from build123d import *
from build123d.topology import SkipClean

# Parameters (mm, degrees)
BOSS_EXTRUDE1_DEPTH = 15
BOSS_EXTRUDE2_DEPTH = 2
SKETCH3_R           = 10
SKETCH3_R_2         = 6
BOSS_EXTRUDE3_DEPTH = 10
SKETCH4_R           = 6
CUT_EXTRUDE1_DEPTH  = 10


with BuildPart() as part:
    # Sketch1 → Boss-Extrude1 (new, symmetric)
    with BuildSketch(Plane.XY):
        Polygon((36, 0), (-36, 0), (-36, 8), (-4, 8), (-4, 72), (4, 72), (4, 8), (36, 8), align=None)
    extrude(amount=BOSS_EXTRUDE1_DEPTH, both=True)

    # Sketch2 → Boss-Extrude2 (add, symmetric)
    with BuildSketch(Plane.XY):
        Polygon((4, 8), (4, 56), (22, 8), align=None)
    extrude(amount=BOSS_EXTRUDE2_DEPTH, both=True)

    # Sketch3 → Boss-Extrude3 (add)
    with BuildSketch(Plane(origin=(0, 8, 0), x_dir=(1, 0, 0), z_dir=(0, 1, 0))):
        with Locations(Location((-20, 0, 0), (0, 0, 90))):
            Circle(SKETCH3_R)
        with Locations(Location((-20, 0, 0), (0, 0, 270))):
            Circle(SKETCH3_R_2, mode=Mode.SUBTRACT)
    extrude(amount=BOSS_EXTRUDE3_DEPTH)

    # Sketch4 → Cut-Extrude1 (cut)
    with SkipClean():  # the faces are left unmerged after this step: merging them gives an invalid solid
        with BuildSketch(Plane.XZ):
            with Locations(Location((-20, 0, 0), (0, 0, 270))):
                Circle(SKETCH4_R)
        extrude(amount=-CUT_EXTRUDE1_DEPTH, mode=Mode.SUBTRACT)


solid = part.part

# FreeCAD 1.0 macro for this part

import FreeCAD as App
import Part
import Sketcher


def add_polygon(sketch, points):
    """Adds a closed chain of lines whose ends are joined by coincident constraints."""
    first, n = sketch.GeometryCount, len(points)
    for a, b in zip(points, points[1:] + points[:1]):
        sketch.addGeometry(Part.LineSegment(App.Vector(*a, 0), App.Vector(*b, 0)), False)
    for i in range(n):
        sketch.addConstraint(Sketcher.Constraint("Coincident", first + i, 2, first + (i + 1) % n, 1))

doc = App.newDocument("Part")
body = doc.addObject("PartDesign::Body", "Body")

# Sketch on XY plane
sketch1 = doc.addObject("Sketcher::SketchObject", "Sketch")
body.addObject(sketch1)
sketch1.AttachmentSupport = (doc.XY_Plane, [""])
sketch1.MapMode = "FlatFace"
add_polygon(sketch1, [(-36, 0), (36, 0), (36, 8), (4, 8), (4, 72), (-4, 72), (-4, 8), (-36, 8)])  # lines 0-7
sketch1.addConstraint([
    Sketcher.Constraint("Horizontal", 0),
    Sketcher.Constraint("Vertical", 1),
    Sketcher.Constraint("Horizontal", 2),
    Sketcher.Constraint("Vertical", 3),
    Sketcher.Constraint("Horizontal", 4),
    Sketcher.Constraint("Vertical", 5),
    Sketcher.Constraint("Horizontal", 6),
    Sketcher.Constraint("Vertical", 7),
    Sketcher.Constraint("Symmetric", 0, 2, 7, 2, -1, 1),
    Sketcher.Constraint("Symmetric", 2, 2, 5, 2, -2),
    Sketcher.Constraint("Equal", 4, 1),
    Sketcher.Constraint("DistanceX", 0, 1, 0, 2, 72.0),
    Sketcher.Constraint("DistanceX", 2, 2, 2, 1, 32.0),
    Sketcher.Constraint("DistanceY", 3, 1, 3, 2, 64.0),
])
pad1 = doc.addObject("PartDesign::Pad", "Pad")
body.addObject(pad1)
pad1.Profile = sketch1
pad1.Length = 30
pad1.Midplane = True

# Sketch on XY plane
sketch2 = doc.addObject("Sketcher::SketchObject", "Sketch001")
body.addObject(sketch2)
sketch2.AttachmentSupport = (doc.XY_Plane, [""])
sketch2.MapMode = "FlatFace"
add_polygon(sketch2, [(4, 56), (4, 8), (22, 8)])  # lines 0-2
sketch2.addConstraint([
    Sketcher.Constraint("Vertical", 0),
    Sketcher.Constraint("Horizontal", 1),
    Sketcher.Constraint("DistanceX", 1, 1, 1, 2, 18.0),
    Sketcher.Constraint("DistanceY", 0, 2, 0, 1, 48.0),
    Sketcher.Constraint("DistanceX", -1, 1, 0, 2, 4.0),
    Sketcher.Constraint("DistanceY", -1, 1, 0, 2, 8.0),
])
pad2 = doc.addObject("PartDesign::Pad", "Pad001")
body.addObject(pad2)
pad2.Profile = sketch2
pad2.Length = 4
pad2.Midplane = True

# Sketch on XZ plane
sketch3 = doc.addObject("Sketcher::SketchObject", "Sketch002")
body.addObject(sketch3)
sketch3.AttachmentSupport = (doc.XZ_Plane, [""])
sketch3.MapMode = "FlatFace"
sketch3.AttachmentOffset = App.Placement(App.Vector(0, 0, -8), App.Rotation())
sketch3.addGeometry([
    Part.Circle(App.Vector(-20, 0, 0), App.Vector(0, 0, 1), 10),
    Part.Circle(App.Vector(-20, 0, 0), App.Vector(0, 0, 1), 6),
], False)
sketch3.addConstraint([
    Sketcher.Constraint("Coincident", 1, 3, 0, 3),
    Sketcher.Constraint("PointOnObject", 0, 3, -1),
    Sketcher.Constraint("Diameter", 0, 20.0),
    Sketcher.Constraint("Diameter", 1, 12.0),
    Sketcher.Constraint("DistanceX", 0, 3, -1, 1, 20.0),
])
pad3 = doc.addObject("PartDesign::Pad", "Pad002")
body.addObject(pad3)
pad3.Profile = sketch3
pad3.Length = 10
pad3.Reversed = True

# Sketch on XZ plane
sketch4 = doc.addObject("Sketcher::SketchObject", "Sketch003")
body.addObject(sketch4)
sketch4.AttachmentSupport = (doc.XZ_Plane, [""])
sketch4.MapMode = "FlatFace"
sketch4.addGeometry(Part.Circle(App.Vector(-20, 0, 0), App.Vector(0, 0, 1), 6), False)
sketch4.addConstraint([
    Sketcher.Constraint("PointOnObject", 0, 3, -1),
    Sketcher.Constraint("Diameter", 0, 12.0),
    Sketcher.Constraint("DistanceX", 0, 3, -1, 1, 20.0),
])
pocket1 = doc.addObject("PartDesign::Pocket", "Pocket")
body.addObject(pocket1)
pocket1.Profile = sketch4
pocket1.Length = 10

doc.recompute()
